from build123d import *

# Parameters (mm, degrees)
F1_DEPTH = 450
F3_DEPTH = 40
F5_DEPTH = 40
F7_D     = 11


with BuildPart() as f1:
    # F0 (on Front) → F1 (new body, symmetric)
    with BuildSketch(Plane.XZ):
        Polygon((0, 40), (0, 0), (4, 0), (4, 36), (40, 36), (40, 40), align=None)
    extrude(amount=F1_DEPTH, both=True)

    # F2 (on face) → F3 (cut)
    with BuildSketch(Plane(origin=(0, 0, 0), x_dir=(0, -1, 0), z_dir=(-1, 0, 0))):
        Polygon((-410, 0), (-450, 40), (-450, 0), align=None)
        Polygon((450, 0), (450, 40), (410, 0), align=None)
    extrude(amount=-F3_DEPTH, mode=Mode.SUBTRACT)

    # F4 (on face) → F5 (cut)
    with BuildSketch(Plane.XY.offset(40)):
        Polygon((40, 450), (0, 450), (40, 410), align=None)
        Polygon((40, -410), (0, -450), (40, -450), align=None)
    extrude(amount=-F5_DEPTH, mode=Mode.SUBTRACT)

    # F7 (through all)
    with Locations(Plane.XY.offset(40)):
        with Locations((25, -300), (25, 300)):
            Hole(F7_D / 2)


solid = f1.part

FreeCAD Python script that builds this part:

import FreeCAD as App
import Part
import Sketcher
from FreeCAD import Vector


def add_polygon(sketch, points):
    """Adds a closed chain of lines whose ends are joined by coincident constraints."""
    first, n = sketch.GeometryCount, len(points)
    for a, b in zip(points, points[1:] + points[:1]):
        sketch.addGeometry(Part.LineSegment(App.Vector(*a, 0), App.Vector(*b, 0)), False)
    for i in range(n):
        sketch.addConstraint(Sketcher.Constraint("Coincident", first + i, 2, first + (i + 1) % n, 1))

doc = App.newDocument("Part")
body = doc.addObject("PartDesign::Body", "Body")

sketch1 = body.newObject("Sketcher::SketchObject", "Sketch")
sketch1.AttachmentSupport = (doc.getObject("XZ_Plane"), [""])
sketch1.MapMode = "FlatFace"
add_polygon(sketch1, [(0, 40), (0, 0), (4, 0), (4, 36), (40, 36), (40, 40)])
sketch1.addConstraint([
    Sketcher.Constraint("Vertical", 0),
    Sketcher.Constraint("Horizontal", 1),
    Sketcher.Constraint("Vertical", 2),
    Sketcher.Constraint("Horizontal", 3),
    Sketcher.Constraint("Vertical", 4),
    Sketcher.Constraint("Horizontal", 5),
    Sketcher.Constraint("Coincident", 0, 2, -1, 1),
    Sketcher.Constraint("Equal", 5, 0),
    Sketcher.Constraint("Equal", 3, 2),
    Sketcher.Constraint("DistanceX", 1, 1, 1, 2, 4.0),
    Sketcher.Constraint("DistanceX", 3, 1, 3, 2, 36.0),
])
pad1 = body.newObject("PartDesign::Pad", "Pad")
pad1.Profile = sketch1
pad1.Length = 900
pad1.Midplane = True

sketch2 = body.newObject("Sketcher::SketchObject", "Sketch001")
sketch2.AttachmentSupport = (doc.getObject("YZ_Plane"), [""])
sketch2.MapMode = "FlatFace"
add_polygon(sketch2, [(410, 0), (450, 40), (450, 0)])
add_polygon(sketch2, [(-450, 0), (-450, 40), (-410, 0)])
sketch2.addConstraint([
    Sketcher.Constraint("Vertical", 1),
    Sketcher.Constraint("Horizontal", 2),
    Sketcher.Constraint("Vertical", 3),
    Sketcher.Constraint("Horizontal", 5),
    Sketcher.Constraint("Symmetric", 2, 2, 4, 2, -1, 1),
    Sketcher.Constraint("Symmetric", 0, 2, 3, 2, -2),
    Sketcher.Constraint("PointOnObject", 1, 2, -1),
    Sketcher.Constraint("Perpendicular", 0, 4),
    Sketcher.Constraint("DistanceX", 2, 2, 2, 1, 40.0),
    Sketcher.Constraint("DistanceX", -1, 1, 0, 2, 450.0),
])
pocket1 = body.newObject("PartDesign::Pocket", "Pocket")
pocket1.Profile = sketch2
pocket1.Length = 40
pocket1.Reversed = True

sketch3 = body.newObject("Sketcher::SketchObject", "Sketch002")
sketch3.AttachmentSupport = (doc.getObject("XY_Plane"), [""])
sketch3.MapMode = "FlatFace"
sketch3.AttachmentOffset = App.Placement(Vector(0, 0, 40), App.Rotation())
add_polygon(sketch3, [(40, 450), (0, 450), (40, 410)])
add_polygon(sketch3, [(40, -410), (0, -450), (40, -450)])
sketch3.addConstraint([
    Sketcher.Constraint("Horizontal", 0),
    Sketcher.Constraint("Vertical", 2),
    Sketcher.Constraint("Horizontal", 4),
    Sketcher.Constraint("Vertical", 5),
    Sketcher.Constraint("Symmetric", 0, 2, 3, 2, -1, 1),
    Sketcher.Constraint("Symmetric", 1, 2, 5, 2, -1),
    Sketcher.Constraint("PointOnObject", 0, 2, -2),
    Sketcher.Constraint("Perpendicular", 1, 3),
    Sketcher.Constraint("DistanceX", 0, 2, 0, 1, 40.0),
    Sketcher.Constraint("DistanceY", -1, 1, 0, 2, 450.0),
])
pocket2 = body.newObject("PartDesign::Pocket", "Pocket001")
pocket2.Profile = sketch3
pocket2.Length = 40

sketch4 = body.newObject("Sketcher::SketchObject", "Sketch003")
sketch4.AttachmentSupport = (doc.getObject("XY_Plane"), [""])
sketch4.MapMode = "FlatFace"
sketch4.AttachmentOffset = App.Placement(Vector(0, 0, 40), App.Rotation())
sketch4.addGeometry([
    Part.Circle(Vector(25, -300, 0), Vector(0, 0, 1), 6),
    Part.Circle(Vector(25, 300, 0), Vector(0, 0, 1), 6),
], False)
sketch4.addConstraint([
    Sketcher.Constraint("Equal", 0, 1),
    Sketcher.Constraint("Symmetric", 0, 3, 1, 3, -1),
    Sketcher.Constraint("Diameter", 0, 11.0),
    Sketcher.Constraint("DistanceX", -1, 1, 0, 3, 25.0),
    Sketcher.Constraint("DistanceY", 0, 3, -1, 1, 300.0),
])
doc.recompute()
hole = body.newObject("PartDesign::Hole", "Hole")
hole.Profile = sketch4
hole.ThreadType = "None"
hole.Diameter = 11
hole.DepthType = "ThroughAll"

doc.recompute()
